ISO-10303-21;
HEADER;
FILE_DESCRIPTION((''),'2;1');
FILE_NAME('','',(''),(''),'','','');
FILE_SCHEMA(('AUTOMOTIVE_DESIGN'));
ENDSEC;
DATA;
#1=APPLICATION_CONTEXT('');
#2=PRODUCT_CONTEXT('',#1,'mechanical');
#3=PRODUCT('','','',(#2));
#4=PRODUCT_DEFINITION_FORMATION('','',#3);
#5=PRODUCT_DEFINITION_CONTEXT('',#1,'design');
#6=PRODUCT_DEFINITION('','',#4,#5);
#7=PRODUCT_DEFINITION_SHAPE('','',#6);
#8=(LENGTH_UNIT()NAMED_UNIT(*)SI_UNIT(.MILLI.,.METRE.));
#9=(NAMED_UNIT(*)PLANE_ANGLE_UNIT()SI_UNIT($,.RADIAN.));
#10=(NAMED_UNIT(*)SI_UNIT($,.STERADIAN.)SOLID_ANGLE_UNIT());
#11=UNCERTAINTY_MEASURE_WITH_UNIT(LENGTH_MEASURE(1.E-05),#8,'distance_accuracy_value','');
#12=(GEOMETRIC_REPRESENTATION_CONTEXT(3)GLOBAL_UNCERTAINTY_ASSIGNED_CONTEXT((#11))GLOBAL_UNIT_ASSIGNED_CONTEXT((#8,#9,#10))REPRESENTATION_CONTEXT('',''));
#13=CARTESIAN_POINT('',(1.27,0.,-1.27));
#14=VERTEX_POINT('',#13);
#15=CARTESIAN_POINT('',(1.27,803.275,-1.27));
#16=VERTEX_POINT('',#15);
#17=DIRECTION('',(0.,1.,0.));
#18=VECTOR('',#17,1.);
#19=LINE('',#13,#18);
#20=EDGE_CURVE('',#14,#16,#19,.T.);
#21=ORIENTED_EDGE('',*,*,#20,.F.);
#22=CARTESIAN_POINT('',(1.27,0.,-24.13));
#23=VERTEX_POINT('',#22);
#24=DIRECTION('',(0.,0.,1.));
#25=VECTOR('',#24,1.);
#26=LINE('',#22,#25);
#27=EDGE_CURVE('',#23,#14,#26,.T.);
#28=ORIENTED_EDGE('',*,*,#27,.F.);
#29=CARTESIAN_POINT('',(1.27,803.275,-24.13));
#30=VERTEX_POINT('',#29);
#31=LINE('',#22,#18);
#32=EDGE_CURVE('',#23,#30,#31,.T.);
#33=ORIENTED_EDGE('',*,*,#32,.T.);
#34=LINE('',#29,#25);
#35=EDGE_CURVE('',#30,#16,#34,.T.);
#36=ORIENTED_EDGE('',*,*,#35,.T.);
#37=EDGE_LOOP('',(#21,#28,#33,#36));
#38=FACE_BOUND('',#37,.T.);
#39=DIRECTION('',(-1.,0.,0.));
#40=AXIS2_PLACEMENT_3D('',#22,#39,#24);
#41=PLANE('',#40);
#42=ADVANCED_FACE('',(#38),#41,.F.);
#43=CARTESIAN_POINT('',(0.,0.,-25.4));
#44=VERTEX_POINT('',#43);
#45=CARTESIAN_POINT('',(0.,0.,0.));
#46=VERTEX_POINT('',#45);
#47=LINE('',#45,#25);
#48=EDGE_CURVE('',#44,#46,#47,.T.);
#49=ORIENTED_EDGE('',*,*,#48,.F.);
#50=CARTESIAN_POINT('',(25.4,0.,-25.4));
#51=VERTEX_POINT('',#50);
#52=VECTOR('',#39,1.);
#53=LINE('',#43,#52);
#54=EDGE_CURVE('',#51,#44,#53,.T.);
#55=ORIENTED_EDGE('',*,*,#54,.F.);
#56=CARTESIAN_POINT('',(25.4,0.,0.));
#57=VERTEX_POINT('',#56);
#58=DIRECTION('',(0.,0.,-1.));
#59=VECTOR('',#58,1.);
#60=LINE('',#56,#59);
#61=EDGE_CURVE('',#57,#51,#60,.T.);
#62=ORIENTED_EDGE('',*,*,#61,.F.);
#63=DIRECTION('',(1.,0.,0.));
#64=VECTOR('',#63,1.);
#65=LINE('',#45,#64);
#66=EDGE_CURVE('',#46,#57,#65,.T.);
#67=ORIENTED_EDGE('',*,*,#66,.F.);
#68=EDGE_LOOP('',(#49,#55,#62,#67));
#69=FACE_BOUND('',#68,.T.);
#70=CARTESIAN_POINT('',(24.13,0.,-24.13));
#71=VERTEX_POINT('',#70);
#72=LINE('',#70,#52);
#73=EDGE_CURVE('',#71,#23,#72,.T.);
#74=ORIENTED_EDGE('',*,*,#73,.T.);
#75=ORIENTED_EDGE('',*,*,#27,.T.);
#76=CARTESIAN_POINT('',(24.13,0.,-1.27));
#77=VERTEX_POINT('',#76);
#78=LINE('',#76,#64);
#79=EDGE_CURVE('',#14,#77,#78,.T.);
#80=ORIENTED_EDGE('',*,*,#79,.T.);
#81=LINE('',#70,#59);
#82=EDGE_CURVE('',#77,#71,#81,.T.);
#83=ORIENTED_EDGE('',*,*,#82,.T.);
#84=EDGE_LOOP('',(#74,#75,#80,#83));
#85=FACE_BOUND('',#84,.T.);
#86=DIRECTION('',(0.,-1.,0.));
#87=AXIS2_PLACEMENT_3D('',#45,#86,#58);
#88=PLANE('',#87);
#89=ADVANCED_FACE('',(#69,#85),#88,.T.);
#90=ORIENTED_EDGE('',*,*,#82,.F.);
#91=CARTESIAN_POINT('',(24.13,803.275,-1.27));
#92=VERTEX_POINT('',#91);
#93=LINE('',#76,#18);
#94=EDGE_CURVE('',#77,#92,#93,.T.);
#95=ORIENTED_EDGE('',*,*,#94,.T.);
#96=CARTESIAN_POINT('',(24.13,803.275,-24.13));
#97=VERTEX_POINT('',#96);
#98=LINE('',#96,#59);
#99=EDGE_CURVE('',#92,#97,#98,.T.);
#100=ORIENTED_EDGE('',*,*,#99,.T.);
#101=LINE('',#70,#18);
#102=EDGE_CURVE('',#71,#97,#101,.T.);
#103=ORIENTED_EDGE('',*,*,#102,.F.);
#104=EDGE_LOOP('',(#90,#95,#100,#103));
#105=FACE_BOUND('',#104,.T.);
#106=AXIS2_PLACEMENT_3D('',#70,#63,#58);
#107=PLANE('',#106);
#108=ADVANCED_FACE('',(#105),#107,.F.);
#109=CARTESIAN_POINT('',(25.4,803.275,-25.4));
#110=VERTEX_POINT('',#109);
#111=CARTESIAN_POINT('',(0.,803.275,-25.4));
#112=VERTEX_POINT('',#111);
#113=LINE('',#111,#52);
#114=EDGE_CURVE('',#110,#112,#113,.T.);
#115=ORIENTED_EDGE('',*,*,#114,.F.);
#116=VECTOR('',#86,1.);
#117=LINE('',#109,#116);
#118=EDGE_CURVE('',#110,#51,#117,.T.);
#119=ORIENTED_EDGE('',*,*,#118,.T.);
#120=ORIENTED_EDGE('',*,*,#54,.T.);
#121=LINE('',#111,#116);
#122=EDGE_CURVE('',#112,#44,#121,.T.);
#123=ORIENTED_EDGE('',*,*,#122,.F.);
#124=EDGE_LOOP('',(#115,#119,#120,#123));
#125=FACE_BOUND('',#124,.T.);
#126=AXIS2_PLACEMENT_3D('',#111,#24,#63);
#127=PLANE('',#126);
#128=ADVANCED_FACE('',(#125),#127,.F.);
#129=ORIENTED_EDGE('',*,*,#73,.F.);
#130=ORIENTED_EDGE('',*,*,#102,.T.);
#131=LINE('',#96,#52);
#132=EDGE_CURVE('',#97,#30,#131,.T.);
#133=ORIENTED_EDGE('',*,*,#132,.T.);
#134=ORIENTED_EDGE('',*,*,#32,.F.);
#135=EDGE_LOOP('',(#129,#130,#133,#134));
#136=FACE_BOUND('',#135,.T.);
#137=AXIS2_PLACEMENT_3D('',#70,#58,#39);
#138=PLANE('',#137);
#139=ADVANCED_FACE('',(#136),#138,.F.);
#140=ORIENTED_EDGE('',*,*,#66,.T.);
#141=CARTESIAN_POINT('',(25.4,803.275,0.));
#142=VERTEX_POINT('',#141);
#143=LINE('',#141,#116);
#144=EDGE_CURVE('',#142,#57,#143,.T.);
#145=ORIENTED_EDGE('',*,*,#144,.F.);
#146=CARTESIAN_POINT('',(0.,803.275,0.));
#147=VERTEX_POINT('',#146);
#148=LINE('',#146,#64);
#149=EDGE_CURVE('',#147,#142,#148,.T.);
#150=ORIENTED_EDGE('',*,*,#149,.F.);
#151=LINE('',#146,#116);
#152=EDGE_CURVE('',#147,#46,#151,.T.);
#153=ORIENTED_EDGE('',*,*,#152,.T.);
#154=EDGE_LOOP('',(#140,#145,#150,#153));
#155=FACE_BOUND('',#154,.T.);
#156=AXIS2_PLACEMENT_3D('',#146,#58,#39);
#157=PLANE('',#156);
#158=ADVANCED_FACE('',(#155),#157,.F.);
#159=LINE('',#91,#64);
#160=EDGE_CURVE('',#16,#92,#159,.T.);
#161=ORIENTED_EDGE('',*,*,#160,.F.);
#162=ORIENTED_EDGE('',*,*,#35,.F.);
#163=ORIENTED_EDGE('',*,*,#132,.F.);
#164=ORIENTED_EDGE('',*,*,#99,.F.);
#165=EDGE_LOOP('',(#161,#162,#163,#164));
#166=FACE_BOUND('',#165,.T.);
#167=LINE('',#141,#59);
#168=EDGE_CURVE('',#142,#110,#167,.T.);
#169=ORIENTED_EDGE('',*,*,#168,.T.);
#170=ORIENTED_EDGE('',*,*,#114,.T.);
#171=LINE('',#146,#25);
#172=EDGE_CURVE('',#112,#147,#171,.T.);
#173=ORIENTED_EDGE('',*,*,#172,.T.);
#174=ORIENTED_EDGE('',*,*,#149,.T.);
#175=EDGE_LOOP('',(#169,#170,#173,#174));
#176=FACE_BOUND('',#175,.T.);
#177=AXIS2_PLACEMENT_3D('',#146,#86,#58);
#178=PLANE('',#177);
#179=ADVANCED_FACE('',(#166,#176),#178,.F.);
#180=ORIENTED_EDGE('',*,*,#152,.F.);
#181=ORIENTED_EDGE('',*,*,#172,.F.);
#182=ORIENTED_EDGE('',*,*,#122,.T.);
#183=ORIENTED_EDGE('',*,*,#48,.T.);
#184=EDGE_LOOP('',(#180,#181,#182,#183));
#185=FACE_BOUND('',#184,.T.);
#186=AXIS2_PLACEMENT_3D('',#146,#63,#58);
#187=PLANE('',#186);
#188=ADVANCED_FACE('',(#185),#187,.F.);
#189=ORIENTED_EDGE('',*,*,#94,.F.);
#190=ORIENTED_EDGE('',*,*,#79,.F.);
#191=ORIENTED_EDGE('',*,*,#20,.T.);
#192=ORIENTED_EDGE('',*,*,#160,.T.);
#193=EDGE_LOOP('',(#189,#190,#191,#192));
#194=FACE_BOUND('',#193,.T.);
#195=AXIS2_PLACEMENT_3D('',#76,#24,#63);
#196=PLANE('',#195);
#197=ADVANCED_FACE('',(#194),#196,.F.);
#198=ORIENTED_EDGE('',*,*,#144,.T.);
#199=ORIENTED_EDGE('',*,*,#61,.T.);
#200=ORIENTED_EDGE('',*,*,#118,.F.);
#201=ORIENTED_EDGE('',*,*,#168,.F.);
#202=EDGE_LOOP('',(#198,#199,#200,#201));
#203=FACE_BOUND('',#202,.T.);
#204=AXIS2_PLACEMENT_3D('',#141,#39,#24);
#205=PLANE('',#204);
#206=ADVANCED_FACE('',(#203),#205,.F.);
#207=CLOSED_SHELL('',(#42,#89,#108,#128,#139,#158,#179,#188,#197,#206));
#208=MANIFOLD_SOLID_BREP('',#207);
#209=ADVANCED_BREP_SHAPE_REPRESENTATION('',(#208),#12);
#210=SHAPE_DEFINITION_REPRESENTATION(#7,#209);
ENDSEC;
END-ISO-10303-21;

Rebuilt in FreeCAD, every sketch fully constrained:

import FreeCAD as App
import Part
import Sketcher
from FreeCAD import Vector
Q = App.Units.Quantity

doc = App.newDocument("Part")
params = doc.addObject("Spreadsheet::Sheet", "Params")
for row, (alias, value) in enumerate([
    ("sketch1_width", "1 in"),
    ("pad1_length", "31.625 in"),
    ("sketch2_width", "0.9 in"),
], start=1):
    params.set(f"A{row}", alias)
    params.set(f"B{row}", "=" + value)
    params.setAlias(f"B{row}", alias)

body = doc.addObject("PartDesign::Body", "Body")

# Sketch on XZ plane
sketch1 = body.newObject("Sketcher::SketchObject", "Sketch")
sketch1.AttachmentSupport = (doc.getObject("XZ_Plane"), [""])
sketch1.MapMode = "FlatFace"
sketch1.addGeometry(Part.LineSegment(Vector(0, -25.4, 0), Vector(0, 0, 0)), False)
sketch1.addGeometry(Part.LineSegment(Vector(0, 0, 0), Vector(25.4, 0, 0)), False)
sketch1.addGeometry(Part.LineSegment(Vector(25.4, 0, 0), Vector(25.4, -25.4, 0)), False)
sketch1.addGeometry(Part.LineSegment(Vector(25.4, -25.4, 0), Vector(0, -25.4, 0)), False)
sketch1.addConstraint(Sketcher.Constraint("Coincident", 0, 2, 1, 1))
sketch1.addConstraint(Sketcher.Constraint("Coincident", 1, 2, 2, 1))
sketch1.addConstraint(Sketcher.Constraint("Coincident", 2, 2, 3, 1))
sketch1.addConstraint(Sketcher.Constraint("Coincident", 3, 2, 0, 1))
sketch1.addConstraint(Sketcher.Constraint("Vertical", 0))
sketch1.addConstraint(Sketcher.Constraint("Horizontal", 1))
sketch1.addConstraint(Sketcher.Constraint("Vertical", 2))
sketch1.addConstraint(Sketcher.Constraint("Horizontal", 3))
sketch1.addConstraint(Sketcher.Constraint("Coincident", 0, 2, -1, 1))
sketch1.addConstraint(Sketcher.Constraint("Equal", 3, 0))
sketch1.addConstraint(Sketcher.Constraint("DistanceX", 1, 1, 1, 2, Q("1 in")))
sketch1.setExpression("Constraints[10]", "Params.sketch1_width")
pad1 = body.newObject("PartDesign::Pad", "Pad")
pad1.Profile = sketch1
pad1.setExpression("Length", "Params.pad1_length")
pad1.Reversed = True

# Sketch on XZ plane
sketch2 = body.newObject("Sketcher::SketchObject", "Sketch001")
sketch2.AttachmentSupport = (doc.getObject("XZ_Plane"), [""])
sketch2.MapMode = "FlatFace"
sketch2.AttachmentOffset = App.Placement(Vector(0, 0, -31.625 * 25.4), App.Rotation())
sketch2.addGeometry(Part.LineSegment(Vector(1.27, -24.13, 0), Vector(1.27, -1.27, 0)), False)
sketch2.addGeometry(Part.LineSegment(Vector(1.27, -1.27, 0), Vector(24.13, -1.27, 0)), False)
sketch2.addGeometry(Part.LineSegment(Vector(24.13, -1.27, 0), Vector(24.13, -24.13, 0)), False)
sketch2.addGeometry(Part.LineSegment(Vector(24.13, -24.13, 0), Vector(1.27, -24.13, 0)), False)
sketch2.addConstraint(Sketcher.Constraint("Coincident", 0, 2, 1, 1))
sketch2.addConstraint(Sketcher.Constraint("Coincident", 1, 2, 2, 1))
sketch2.addConstraint(Sketcher.Constraint("Coincident", 2, 2, 3, 1))
sketch2.addConstraint(Sketcher.Constraint("Coincident", 3, 2, 0, 1))
sketch2.addConstraint(Sketcher.Constraint("Vertical", 0))
sketch2.addConstraint(Sketcher.Constraint("Horizontal", 1))
sketch2.addConstraint(Sketcher.Constraint("Vertical", 2))
sketch2.addConstraint(Sketcher.Constraint("Horizontal", 3))
sketch2.addConstraint(Sketcher.Constraint("Equal", 3, 0))
sketch2.addConstraint(Sketcher.Constraint("DistanceX", 1, 1, 1, 2, Q("0.9 in")))
sketch2.addConstraint(Sketcher.Constraint("DistanceX", -1, 1, 0, 2, Q("0.05 in")))
sketch2.addConstraint(Sketcher.Constraint("DistanceY", 0, 2, -1, 1, Q("0.05 in")))
sketch2.setExpression("Constraints[9]", "Params.sketch2_width")
pocket1 = body.newObject("PartDesign::Pocket", "Pocket")
pocket1.Profile = sketch2
pocket1.Type = "ThroughAll"
pocket1.Reversed = True

doc.recompute()
